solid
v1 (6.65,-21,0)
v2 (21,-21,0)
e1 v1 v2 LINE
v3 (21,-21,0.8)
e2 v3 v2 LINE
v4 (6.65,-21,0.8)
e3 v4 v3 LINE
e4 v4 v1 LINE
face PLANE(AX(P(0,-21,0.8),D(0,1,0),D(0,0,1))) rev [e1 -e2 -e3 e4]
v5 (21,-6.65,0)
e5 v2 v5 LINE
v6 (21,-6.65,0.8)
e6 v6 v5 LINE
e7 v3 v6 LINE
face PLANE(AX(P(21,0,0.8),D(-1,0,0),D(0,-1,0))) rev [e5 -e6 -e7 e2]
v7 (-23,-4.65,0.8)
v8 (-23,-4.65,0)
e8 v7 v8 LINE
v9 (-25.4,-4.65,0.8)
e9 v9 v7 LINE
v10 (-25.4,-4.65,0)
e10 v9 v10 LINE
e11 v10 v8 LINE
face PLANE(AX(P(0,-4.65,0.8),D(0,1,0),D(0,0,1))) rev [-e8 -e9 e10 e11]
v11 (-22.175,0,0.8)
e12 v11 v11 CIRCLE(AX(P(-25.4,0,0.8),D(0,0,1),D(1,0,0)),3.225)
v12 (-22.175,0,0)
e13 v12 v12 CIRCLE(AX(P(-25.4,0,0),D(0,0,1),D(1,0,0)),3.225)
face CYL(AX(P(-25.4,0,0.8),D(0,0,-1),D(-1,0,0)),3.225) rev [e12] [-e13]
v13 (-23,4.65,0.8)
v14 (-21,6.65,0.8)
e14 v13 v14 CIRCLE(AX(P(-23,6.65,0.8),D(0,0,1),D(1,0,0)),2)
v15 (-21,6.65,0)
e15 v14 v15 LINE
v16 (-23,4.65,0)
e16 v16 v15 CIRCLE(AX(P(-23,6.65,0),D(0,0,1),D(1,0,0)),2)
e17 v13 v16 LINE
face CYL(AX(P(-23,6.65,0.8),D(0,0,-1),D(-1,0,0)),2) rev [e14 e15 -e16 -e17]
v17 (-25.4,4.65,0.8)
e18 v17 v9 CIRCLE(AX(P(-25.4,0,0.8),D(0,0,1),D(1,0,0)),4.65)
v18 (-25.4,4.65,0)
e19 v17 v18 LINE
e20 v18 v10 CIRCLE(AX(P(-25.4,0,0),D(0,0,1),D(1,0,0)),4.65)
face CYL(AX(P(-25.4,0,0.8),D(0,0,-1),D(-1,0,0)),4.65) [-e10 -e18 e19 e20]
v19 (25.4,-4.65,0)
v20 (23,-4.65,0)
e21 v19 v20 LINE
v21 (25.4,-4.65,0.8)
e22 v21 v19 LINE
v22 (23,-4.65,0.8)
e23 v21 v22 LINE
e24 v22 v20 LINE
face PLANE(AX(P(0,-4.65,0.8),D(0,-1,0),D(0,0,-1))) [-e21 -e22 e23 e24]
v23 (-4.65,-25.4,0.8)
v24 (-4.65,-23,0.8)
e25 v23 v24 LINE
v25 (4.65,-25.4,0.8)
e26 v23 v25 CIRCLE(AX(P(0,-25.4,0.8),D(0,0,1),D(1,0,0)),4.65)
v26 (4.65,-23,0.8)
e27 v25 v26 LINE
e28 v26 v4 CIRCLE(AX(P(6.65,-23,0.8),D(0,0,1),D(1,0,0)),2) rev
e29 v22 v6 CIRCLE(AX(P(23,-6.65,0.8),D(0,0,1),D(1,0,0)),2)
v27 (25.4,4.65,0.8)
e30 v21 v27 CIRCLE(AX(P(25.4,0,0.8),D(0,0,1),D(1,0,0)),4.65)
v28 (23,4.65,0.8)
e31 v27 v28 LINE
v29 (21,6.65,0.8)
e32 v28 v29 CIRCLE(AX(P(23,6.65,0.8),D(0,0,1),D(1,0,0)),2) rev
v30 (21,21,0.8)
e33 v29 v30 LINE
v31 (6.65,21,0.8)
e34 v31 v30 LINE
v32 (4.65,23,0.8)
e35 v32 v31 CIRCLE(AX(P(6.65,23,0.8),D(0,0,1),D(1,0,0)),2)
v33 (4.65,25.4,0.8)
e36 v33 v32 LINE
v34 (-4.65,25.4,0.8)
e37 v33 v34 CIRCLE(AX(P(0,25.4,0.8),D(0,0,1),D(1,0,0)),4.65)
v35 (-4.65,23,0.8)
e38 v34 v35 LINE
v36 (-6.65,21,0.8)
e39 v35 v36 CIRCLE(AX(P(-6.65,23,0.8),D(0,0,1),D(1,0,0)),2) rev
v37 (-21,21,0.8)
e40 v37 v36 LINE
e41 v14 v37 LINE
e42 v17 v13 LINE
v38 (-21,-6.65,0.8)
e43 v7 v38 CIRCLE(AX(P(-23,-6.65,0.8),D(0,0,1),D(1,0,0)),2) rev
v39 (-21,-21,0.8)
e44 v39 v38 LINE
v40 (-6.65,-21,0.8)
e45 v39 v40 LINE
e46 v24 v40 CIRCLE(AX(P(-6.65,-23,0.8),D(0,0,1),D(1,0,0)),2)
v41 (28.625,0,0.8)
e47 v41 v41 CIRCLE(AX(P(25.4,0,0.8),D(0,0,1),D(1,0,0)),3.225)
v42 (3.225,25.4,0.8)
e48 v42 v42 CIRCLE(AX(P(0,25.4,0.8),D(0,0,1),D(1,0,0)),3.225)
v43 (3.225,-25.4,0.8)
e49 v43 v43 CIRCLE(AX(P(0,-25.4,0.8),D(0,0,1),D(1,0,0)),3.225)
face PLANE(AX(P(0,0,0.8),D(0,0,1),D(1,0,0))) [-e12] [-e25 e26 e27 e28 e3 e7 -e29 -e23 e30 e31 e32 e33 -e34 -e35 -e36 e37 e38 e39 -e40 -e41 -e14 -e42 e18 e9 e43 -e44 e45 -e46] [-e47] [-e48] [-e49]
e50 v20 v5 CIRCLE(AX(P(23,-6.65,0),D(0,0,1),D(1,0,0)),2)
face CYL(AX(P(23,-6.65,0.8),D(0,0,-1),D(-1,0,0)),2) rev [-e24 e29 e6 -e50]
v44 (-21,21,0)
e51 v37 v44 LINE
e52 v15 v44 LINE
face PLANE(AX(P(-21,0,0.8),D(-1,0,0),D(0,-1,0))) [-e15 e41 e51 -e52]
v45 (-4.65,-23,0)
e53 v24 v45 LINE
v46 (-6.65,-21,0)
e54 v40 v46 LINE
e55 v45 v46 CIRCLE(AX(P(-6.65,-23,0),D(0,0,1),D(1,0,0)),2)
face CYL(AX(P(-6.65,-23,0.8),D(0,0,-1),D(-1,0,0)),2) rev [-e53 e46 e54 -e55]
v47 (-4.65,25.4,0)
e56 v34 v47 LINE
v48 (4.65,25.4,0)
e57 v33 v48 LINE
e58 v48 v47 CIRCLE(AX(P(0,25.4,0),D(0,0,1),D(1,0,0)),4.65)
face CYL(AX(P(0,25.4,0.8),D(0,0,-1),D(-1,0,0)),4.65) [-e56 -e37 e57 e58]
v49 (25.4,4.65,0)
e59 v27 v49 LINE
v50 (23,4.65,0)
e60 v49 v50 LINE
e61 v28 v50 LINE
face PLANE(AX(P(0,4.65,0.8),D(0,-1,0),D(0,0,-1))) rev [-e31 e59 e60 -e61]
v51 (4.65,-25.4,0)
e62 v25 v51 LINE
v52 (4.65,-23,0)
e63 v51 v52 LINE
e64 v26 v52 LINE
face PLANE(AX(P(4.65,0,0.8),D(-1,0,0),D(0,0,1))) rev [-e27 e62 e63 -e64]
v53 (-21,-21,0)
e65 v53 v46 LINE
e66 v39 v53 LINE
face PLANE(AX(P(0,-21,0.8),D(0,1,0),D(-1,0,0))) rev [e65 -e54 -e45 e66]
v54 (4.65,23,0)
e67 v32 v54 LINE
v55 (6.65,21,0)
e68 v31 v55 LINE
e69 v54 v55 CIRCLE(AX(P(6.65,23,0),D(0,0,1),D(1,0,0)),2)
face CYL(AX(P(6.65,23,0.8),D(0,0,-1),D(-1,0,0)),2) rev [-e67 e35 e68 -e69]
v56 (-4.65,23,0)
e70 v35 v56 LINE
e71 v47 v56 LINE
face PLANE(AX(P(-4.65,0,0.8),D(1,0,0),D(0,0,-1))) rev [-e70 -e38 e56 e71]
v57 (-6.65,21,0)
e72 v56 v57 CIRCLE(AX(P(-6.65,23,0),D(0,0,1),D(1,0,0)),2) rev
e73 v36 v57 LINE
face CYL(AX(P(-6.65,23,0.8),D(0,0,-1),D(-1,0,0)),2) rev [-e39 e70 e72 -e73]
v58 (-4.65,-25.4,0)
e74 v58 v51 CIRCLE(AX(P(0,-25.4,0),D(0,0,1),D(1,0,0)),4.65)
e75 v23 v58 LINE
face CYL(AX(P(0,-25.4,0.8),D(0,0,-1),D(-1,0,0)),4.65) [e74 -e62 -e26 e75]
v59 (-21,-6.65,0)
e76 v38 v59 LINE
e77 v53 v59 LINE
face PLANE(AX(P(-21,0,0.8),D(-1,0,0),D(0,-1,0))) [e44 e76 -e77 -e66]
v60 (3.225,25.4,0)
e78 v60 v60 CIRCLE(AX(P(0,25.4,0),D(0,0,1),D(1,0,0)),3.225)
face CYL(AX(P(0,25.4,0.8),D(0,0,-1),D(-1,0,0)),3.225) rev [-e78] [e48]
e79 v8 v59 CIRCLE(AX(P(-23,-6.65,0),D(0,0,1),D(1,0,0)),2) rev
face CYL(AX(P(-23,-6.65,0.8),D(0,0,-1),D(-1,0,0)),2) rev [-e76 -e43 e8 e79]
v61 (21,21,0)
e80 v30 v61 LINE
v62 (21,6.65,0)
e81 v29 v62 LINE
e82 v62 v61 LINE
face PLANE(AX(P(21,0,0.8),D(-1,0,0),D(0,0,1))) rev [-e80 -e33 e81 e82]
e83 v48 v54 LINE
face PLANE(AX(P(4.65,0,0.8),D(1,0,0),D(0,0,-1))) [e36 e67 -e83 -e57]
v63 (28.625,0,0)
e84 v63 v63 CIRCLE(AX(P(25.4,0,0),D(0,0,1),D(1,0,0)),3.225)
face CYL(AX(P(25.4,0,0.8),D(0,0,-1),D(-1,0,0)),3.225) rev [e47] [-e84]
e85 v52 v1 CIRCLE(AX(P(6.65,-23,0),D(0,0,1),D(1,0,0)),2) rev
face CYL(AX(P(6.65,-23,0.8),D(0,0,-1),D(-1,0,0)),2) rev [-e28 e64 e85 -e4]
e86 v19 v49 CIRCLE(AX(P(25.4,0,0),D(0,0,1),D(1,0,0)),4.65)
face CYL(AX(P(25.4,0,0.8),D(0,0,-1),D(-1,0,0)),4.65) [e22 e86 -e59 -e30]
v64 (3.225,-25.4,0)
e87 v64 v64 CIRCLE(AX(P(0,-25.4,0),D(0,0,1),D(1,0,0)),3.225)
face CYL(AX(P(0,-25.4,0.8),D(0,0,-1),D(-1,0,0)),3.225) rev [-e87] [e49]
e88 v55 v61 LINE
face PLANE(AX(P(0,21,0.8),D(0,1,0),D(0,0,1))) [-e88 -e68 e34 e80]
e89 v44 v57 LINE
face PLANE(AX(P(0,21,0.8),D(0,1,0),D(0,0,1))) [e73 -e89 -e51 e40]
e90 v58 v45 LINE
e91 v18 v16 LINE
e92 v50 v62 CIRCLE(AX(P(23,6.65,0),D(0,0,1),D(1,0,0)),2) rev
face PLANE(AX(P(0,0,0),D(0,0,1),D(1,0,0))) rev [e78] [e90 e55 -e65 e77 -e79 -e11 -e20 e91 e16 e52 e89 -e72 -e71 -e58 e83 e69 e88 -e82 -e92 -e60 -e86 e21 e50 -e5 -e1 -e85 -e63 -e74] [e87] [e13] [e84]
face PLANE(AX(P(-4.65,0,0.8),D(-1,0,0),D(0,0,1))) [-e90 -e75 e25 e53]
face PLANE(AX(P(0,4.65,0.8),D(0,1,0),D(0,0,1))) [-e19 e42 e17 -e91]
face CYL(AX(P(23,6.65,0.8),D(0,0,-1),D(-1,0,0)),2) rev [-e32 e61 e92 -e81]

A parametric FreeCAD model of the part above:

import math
import FreeCAD as App
import Part
import Sketcher

V = App.Vector
Q = App.Units.Quantity

doc = App.newDocument("Part")
params = doc.addObject("Spreadsheet::Sheet", "Params")
for row, (alias, value) in enumerate([
    ("sketch1_radius", "2 mm"),
    ("sketch1_diameter", "6.45 mm"),
    ("sketch1_radius2", "4.65 mm"),
    ("sketch1_width", "2.4 mm"),
    ("pad1_length", "0.8 mm"),
], start=1):
    params.set(f"A{row}", alias)
    params.set(f"B{row}", "=" + value)
    params.setAlias(f"B{row}", alias)

body = doc.addObject("PartDesign::Body", "Body")

# Sketch on XY plane
sketch1 = body.newObject("Sketcher::SketchObject", "Sketch")
sketch1.AttachmentSupport = (doc.getObject("XY_Plane"), [""])
sketch1.MapMode = "FlatFace"
sketch1.addGeometry([
    Part.ArcOfCircle(Part.Circle(V(0, 25.4, 0), V(0, 0, 1), 4.7), math.radians(0), math.radians(180)),  # 0
    Part.LineSegment(V(-4.7, 25.4, 0), V(-4.7, 23, 0)),  # 1
    Part.ArcOfCircle(Part.Circle(V(-6.7, 23, 0), V(0, 0, 1), 2), math.radians(-90), math.radians(0)),  # 2
    Part.LineSegment(V(-6.7, 21, 0), V(-21, 21, 0)),  # 3
    Part.LineSegment(V(-21, 21, 0), V(-21, 6.7, 0)),  # 4
    Part.ArcOfCircle(Part.Circle(V(-23, 6.7, 0), V(0, 0, 1), 2), math.radians(-90), math.radians(0)),  # 5
    Part.LineSegment(V(-23, 4.7, 0), V(-25.4, 4.7, 0)),  # 6
    Part.ArcOfCircle(Part.Circle(V(-25.4, 0, 0), V(0, 0, 1), 4.7), math.radians(90), math.radians(270)),  # 7
    Part.LineSegment(V(-25.4, -4.7, 0), V(-23, -4.7, 0)),  # 8
    Part.ArcOfCircle(Part.Circle(V(-23, -6.7, 0), V(0, 0, 1), 2), math.radians(0), math.radians(90)),  # 9
    Part.LineSegment(V(-21, -6.7, 0), V(-21, -21, 0)),  # 10
    Part.LineSegment(V(-21, -21, 0), V(-6.7, -21, 0)),  # 11
    Part.ArcOfCircle(Part.Circle(V(-6.7, -23, 0), V(0, 0, 1), 2), math.radians(0), math.radians(90)),  # 12
    Part.LineSegment(V(-4.7, -23, 0), V(-4.7, -25.4, 0)),  # 13
    Part.ArcOfCircle(Part.Circle(V(0, -25.4, 0), V(0, 0, 1), 4.7), math.radians(180), math.radians(360)),  # 14
    Part.LineSegment(V(4.7, -25.4, 0), V(4.7, -23, 0)),  # 15
    Part.ArcOfCircle(Part.Circle(V(6.7, -23, 0), V(0, 0, 1), 2), math.radians(90), math.radians(180)),  # 16
    Part.LineSegment(V(6.7, -21, 0), V(21, -21, 0)),  # 17
    Part.LineSegment(V(21, -21, 0), V(21, -6.7, 0)),  # 18
    Part.ArcOfCircle(Part.Circle(V(23, -6.7, 0), V(0, 0, 1), 2), math.radians(90), math.radians(180)),  # 19
    Part.LineSegment(V(23, -4.7, 0), V(25.4, -4.7, 0)),  # 20
    Part.ArcOfCircle(Part.Circle(V(25.4, 0, 0), V(0, 0, 1), 4.7), math.radians(-90), math.radians(90)),  # 21
    Part.LineSegment(V(25.4, 4.7, 0), V(23, 4.7, 0)),  # 22
    Part.ArcOfCircle(Part.Circle(V(23, 6.7, 0), V(0, 0, 1), 2), math.radians(-180), math.radians(-90)),  # 23
    Part.LineSegment(V(21, 6.7, 0), V(21, 21, 0)),  # 24
    Part.LineSegment(V(21, 21, 0), V(6.7, 21, 0)),  # 25
    Part.ArcOfCircle(Part.Circle(V(6.7, 23, 0), V(0, 0, 1), 2), math.radians(-180), math.radians(-90)),  # 26
    Part.LineSegment(V(4.7, 23, 0), V(4.7, 25.4, 0)),  # 27
    Part.Circle(V(0, -25.4, 0), V(0, 0, 1), 3.2),  # 28
    Part.Circle(V(-25.4, 0, 0), V(0, 0, 1), 3.2),  # 29
    Part.Circle(V(25.4, 0, 0), V(0, 0, 1), 3.2),  # 30
    Part.Circle(V(0, 25.4, 0), V(0, 0, 1), 3.2),  # 31
], False)
sketch1.addConstraint([
    Sketcher.Constraint("Tangent", 0, 2, 1, 1),
    Sketcher.Constraint("Tangent", 1, 2, 2, 2),
    Sketcher.Constraint("Tangent", 2, 1, 3, 1),
    Sketcher.Constraint("Coincident", 3, 2, 4, 1),
    Sketcher.Constraint("Tangent", 4, 2, 5, 2),
    Sketcher.Constraint("Tangent", 5, 1, 6, 1),
    Sketcher.Constraint("Tangent", 6, 2, 7, 1),
    Sketcher.Constraint("Tangent", 7, 2, 8, 1),
    Sketcher.Constraint("Tangent", 8, 2, 9, 2),
    Sketcher.Constraint("Tangent", 9, 1, 10, 1),
    Sketcher.Constraint("Coincident", 10, 2, 11, 1),
    Sketcher.Constraint("Tangent", 11, 2, 12, 2),
    Sketcher.Constraint("Tangent", 12, 1, 13, 1),
    Sketcher.Constraint("Tangent", 13, 2, 14, 1),
    Sketcher.Constraint("Tangent", 14, 2, 15, 1),
    Sketcher.Constraint("Tangent", 15, 2, 16, 2),
    Sketcher.Constraint("Tangent", 16, 1, 17, 1),
    Sketcher.Constraint("Coincident", 17, 2, 18, 1),
    Sketcher.Constraint("Tangent", 18, 2, 19, 2),
    Sketcher.Constraint("Tangent", 19, 1, 20, 1),
    Sketcher.Constraint("Tangent", 20, 2, 21, 1),
    Sketcher.Constraint("Tangent", 21, 2, 22, 1),
    Sketcher.Constraint("Tangent", 22, 2, 23, 2),
    Sketcher.Constraint("Tangent", 23, 1, 24, 1),
    Sketcher.Constraint("Coincident", 24, 2, 25, 1),
    Sketcher.Constraint("Tangent", 25, 2, 26, 2),
    Sketcher.Constraint("Tangent", 26, 1, 27, 1),
    Sketcher.Constraint("Tangent", 27, 2, 0, 1),
    Sketcher.Constraint("Vertical", 1),
    Sketcher.Constraint("Horizontal", 3),
    Sketcher.Constraint("Vertical", 4),
    Sketcher.Constraint("Horizontal", 6),
    Sketcher.Constraint("Horizontal", 8),
    Sketcher.Constraint("Vertical", 10),
    Sketcher.Constraint("Horizontal", 11),
    Sketcher.Constraint("Vertical", 13),
    Sketcher.Constraint("Vertical", 15),
    Sketcher.Constraint("Horizontal", 17),
    Sketcher.Constraint("Vertical", 18),
    Sketcher.Constraint("Horizontal", 20),
    Sketcher.Constraint("Horizontal", 22),
    Sketcher.Constraint("Vertical", 24),
    Sketcher.Constraint("Horizontal", 25),
    Sketcher.Constraint("Vertical", 27),
    Sketcher.Constraint("Coincident", 28, 3, 14, 3),
    Sketcher.Constraint("Coincident", 29, 3, 7, 3),
    Sketcher.Constraint("Coincident", 30, 3, 21, 3),
    Sketcher.Constraint("Coincident", 31, 3, 0, 3),
    Sketcher.Constraint("Equal", 2, 5),
    Sketcher.Constraint("Equal", 0, 7),
    Sketcher.Constraint("Equal", 5, 9),
    Sketcher.Constraint("Equal", 9, 12),
    Sketcher.Constraint("Equal", 7, 14),
    Sketcher.Constraint("Equal", 12, 16),
    Sketcher.Constraint("Equal", 16, 19),
    Sketcher.Constraint("Equal", 14, 21),
    Sketcher.Constraint("Equal", 19, 23),
    Sketcher.Constraint("Equal", 23, 26),
    Sketcher.Constraint("Equal", 28, 29),
    Sketcher.Constraint("Equal", 29, 30),
    Sketcher.Constraint("Equal", 30, 31),
    Sketcher.Constraint("Symmetric", 0, 3, 14, 3, -1, 1),
    Sketcher.Constraint("Symmetric", 5, 3, 19, 3, -1, 1),
    Sketcher.Constraint("Symmetric", 10, 2, 24, 2, -1, 1),
    Sketcher.Constraint("Symmetric", 12, 3, 16, 3, -2),
    Sketcher.Constraint("Symmetric", 9, 3, 19, 3, -2),
    Sketcher.Constraint("Horizontal", 2, 3, 26, 3),
    Sketcher.Constraint("Equal", 8, 20),
    Sketcher.Constraint("Equal", 22, 1),
    Sketcher.Constraint("Equal", 25, 4),
    Sketcher.Constraint("Radius", 2, Q("2 mm")),
    Sketcher.Constraint("Diameter", 28, Q("6.45 mm")),
    Sketcher.Constraint("Radius", 0, Q("4.65 mm")),
    Sketcher.Constraint("DistanceX", 6, 2, 6, 1, Q("2.4 mm")),
    Sketcher.Constraint("DistanceY", -1, 1, 2, 3, Q("23 mm")),
])
sketch1.setExpression("Constraints[70]", "Params.sketch1_radius")
sketch1.setExpression("Constraints[71]", "Params.sketch1_diameter")
sketch1.setExpression("Constraints[72]", "Params.sketch1_radius2")
sketch1.setExpression("Constraints[73]", "Params.sketch1_width")
pad1 = body.newObject("PartDesign::Pad", "Pad")
pad1.Profile = sketch1
pad1.setExpression("Length", "Params.pad1_length")

doc.recompute()
